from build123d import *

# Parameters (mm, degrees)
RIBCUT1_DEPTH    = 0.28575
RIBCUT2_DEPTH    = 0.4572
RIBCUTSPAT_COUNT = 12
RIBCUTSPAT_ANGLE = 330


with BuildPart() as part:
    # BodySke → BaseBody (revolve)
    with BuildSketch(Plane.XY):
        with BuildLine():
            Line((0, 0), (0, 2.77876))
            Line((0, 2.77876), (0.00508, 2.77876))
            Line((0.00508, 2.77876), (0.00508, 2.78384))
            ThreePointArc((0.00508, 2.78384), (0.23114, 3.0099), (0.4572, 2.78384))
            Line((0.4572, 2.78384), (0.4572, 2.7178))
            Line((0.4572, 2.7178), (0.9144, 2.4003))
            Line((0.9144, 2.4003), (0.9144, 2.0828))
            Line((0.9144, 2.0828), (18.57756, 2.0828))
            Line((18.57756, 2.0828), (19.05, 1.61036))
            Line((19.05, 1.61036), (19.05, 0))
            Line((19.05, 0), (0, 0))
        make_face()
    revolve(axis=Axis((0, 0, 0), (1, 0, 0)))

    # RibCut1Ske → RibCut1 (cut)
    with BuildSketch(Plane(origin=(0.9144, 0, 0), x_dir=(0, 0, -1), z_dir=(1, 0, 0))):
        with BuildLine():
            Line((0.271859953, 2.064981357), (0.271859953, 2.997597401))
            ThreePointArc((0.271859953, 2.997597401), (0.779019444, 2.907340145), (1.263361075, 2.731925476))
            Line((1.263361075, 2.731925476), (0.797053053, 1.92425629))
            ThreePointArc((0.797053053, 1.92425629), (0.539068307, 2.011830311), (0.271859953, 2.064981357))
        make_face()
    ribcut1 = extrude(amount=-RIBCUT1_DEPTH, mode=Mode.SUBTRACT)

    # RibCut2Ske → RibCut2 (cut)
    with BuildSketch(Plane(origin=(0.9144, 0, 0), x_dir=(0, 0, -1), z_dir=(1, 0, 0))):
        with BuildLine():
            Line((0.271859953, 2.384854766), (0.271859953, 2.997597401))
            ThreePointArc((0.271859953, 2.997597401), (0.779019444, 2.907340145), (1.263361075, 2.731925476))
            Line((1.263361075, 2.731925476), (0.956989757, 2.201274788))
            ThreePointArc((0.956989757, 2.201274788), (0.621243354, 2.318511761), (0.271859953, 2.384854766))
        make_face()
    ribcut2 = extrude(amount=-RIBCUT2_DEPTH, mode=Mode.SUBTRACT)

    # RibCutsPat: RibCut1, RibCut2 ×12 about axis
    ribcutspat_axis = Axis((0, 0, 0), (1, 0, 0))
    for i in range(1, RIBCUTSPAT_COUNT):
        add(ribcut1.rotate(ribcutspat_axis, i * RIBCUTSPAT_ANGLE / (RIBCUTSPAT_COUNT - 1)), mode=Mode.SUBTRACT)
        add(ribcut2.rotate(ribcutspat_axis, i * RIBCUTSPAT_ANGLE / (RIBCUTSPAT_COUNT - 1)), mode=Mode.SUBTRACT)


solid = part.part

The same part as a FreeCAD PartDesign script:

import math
import FreeCAD as App
import Part
import Sketcher
Q = App.Units.Quantity

doc = App.newDocument("Part")
body = doc.addObject("PartDesign::Body", "Body")

sketch1 = doc.addObject("Sketcher::SketchObject", "Sketch")
body.addObject(sketch1)
sketch1.AttachmentSupport = (doc.XY_Plane, [""])
sketch1.MapMode = "FlatFace"
sketch1.addGeometry([
    Part.LineSegment(App.Vector(0, 2.77876, 0), App.Vector(0, 0, 0)),
    Part.LineSegment(App.Vector(0, 0, 0), App.Vector(19.05, 0, 0)),
    Part.LineSegment(App.Vector(19.05, 0, 0), App.Vector(19.05, 1.61036, 0)),
    Part.LineSegment(App.Vector(19.05, 1.61036, 0), App.Vector(18.57756, 2.0828, 0)),
    Part.LineSegment(App.Vector(18.57756, 2.0828, 0), App.Vector(0.9144, 2.0828, 0)),
    Part.LineSegment(App.Vector(0.9144, 2.0828, 0), App.Vector(0.9144, 2.4003, 0)),
    Part.LineSegment(App.Vector(0.9144, 2.4003, 0), App.Vector(0.4572, 2.7178, 0)),
    Part.LineSegment(App.Vector(0.4572, 2.7178, 0), App.Vector(0.4572, 2.78384, 0)),
    Part.ArcOfCircle(Part.Circle(App.Vector(0.23114, 2.78384, 0), App.Vector(0, 0, 1), 0.22606), math.radians(0), math.radians(180)),
    Part.LineSegment(App.Vector(0.00508, 2.78384, 0), App.Vector(0.00508, 2.77876, 0)),
    Part.LineSegment(App.Vector(0.00508, 2.77876, 0), App.Vector(0, 2.77876, 0)),
], False)
sketch1.addConstraint([
    Sketcher.Constraint("Coincident", 0, 2, 1, 1),
    Sketcher.Constraint("Coincident", 1, 2, 2, 1),
    Sketcher.Constraint("Coincident", 2, 2, 3, 1),
    Sketcher.Constraint("Coincident", 3, 2, 4, 1),
    Sketcher.Constraint("Coincident", 4, 2, 5, 1),
    Sketcher.Constraint("Coincident", 5, 2, 6, 1),
    Sketcher.Constraint("Coincident", 6, 2, 7, 1),
    Sketcher.Constraint("Tangent", 7, 2, 8, 1),
    Sketcher.Constraint("Tangent", 8, 2, 9, 1),
    Sketcher.Constraint("Coincident", 9, 2, 10, 1),
    Sketcher.Constraint("Coincident", 10, 2, 0, 1),
    Sketcher.Constraint("Vertical", 0),
    Sketcher.Constraint("Horizontal", 1),
    Sketcher.Constraint("Vertical", 2),
    Sketcher.Constraint("Horizontal", 4),
    Sketcher.Constraint("Vertical", 5),
    Sketcher.Constraint("Vertical", 7),
    Sketcher.Constraint("Vertical", 9),
    Sketcher.Constraint("Horizontal", 10),
    Sketcher.Constraint("Coincident", 0, 2, -1, 1),
    Sketcher.Constraint("Equal", 10, 9),
    Sketcher.Constraint("Angle", 3, Q("135 deg")),
    Sketcher.Constraint("DistanceX", 1, 1, 1, 2, Q("0.75 in")),
    Sketcher.Constraint("Radius", 8, Q("0.0089 in")),
    Sketcher.Constraint("DistanceX", 4, 2, 4, 1, Q("0.6954 in")),
    Sketcher.Constraint("DistanceX", 10, 2, 10, 1, Q("0.0002 in")),
    Sketcher.Constraint("DistanceY", 0, 2, 0, 1, Q("0.1094 in")),
    Sketcher.Constraint("DistanceY", 2, 1, 2, 2, Q("0.0634 in")),
    Sketcher.Constraint("DistanceY", 5, 1, 5, 2, Q("0.0125 in")),
    Sketcher.Constraint("DistanceY", 7, 1, 7, 2, Q("0.0026 in")),
    Sketcher.Constraint("DistanceY", -1, 1, 3, 2, Q("0.082 in")),
])
revolution = doc.addObject("PartDesign::Revolution", "Revolution")
body.addObject(revolution)
revolution.Profile = sketch1
revolution.ReferenceAxis = (sketch1, ["H_Axis"])
revolution.Angle = 360

sketch2 = doc.addObject("Sketcher::SketchObject", "Sketch001")
body.addObject(sketch2)
sketch2.AttachmentSupport = (doc.YZ_Plane, [""])
sketch2.MapMode = "FlatFace"
sketch2.AttachmentOffset = App.Placement(App.Vector(0, 0, 0.036 * 25.4), App.Rotation())
sketch2.addGeometry([
    Part.LineSegment(App.Vector(2.997597, -0.27186, 0), App.Vector(2.064981, -0.27186, 0)),
    Part.ArcOfCircle(Part.Circle(App.Vector(0, 0, 0), App.Vector(0, 0, 1), 2.0828), math.radians(-22.5), math.radians(-7.5)),
    Part.LineSegment(App.Vector(1.924256, -0.797053, 0), App.Vector(2.731925, -1.263361, 0)),
    Part.ArcOfCircle(Part.Circle(App.Vector(0, 0, 0), App.Vector(0, 0, 1), 3.0099), math.radians(-24.817873), math.radians(-5.182127)),
], False)
sketch2.addConstraint([
    Sketcher.Constraint("Coincident", 0, 2, 1, 2),
    Sketcher.Constraint("Coincident", 1, 1, 2, 1),
    Sketcher.Constraint("Coincident", 2, 2, 3, 1),
    Sketcher.Constraint("Coincident", 3, 2, 0, 1),
    Sketcher.Constraint("Horizontal", 0),
    Sketcher.Constraint("Coincident", 1, 3, -1, 1),
    Sketcher.Constraint("Coincident", 3, 3, -1, 1),
    Sketcher.Constraint("Angle", 2, Q("-30 deg")),
    Sketcher.Constraint("Radius", 1, Q("0.082 in")),
    Sketcher.Constraint("Radius", 3, Q("0.1185 in")),
    Sketcher.Constraint("DistanceY", 2, 2, 0, 2, 0.991501),
    Sketcher.Constraint("DistanceX", 0, 2, 0, 1, 0.932616),
])
pocket1 = doc.addObject("PartDesign::Pocket", "Pocket")
body.addObject(pocket1)
pocket1.Profile = sketch2
pocket1.Length = 0.28575

sketch3 = doc.addObject("Sketcher::SketchObject", "Sketch002")
body.addObject(sketch3)
sketch3.AttachmentSupport = (doc.YZ_Plane, [""])
sketch3.MapMode = "FlatFace"
sketch3.AttachmentOffset = App.Placement(App.Vector(0, 0, 0.036 * 25.4), App.Rotation())
sketch3.addGeometry([
    Part.LineSegment(App.Vector(2.997597, -0.27186, 0), App.Vector(2.384855, -0.27186, 0)),
    Part.ArcOfCircle(Part.Circle(App.Vector(0, 0, 0), App.Vector(0, 0, 1), 2.4003), math.radians(-23.496678), math.radians(-6.503322)),
    Part.LineSegment(App.Vector(2.201275, -0.95699, 0), App.Vector(2.731925, -1.263361, 0)),
    Part.ArcOfCircle(Part.Circle(App.Vector(0, 0, 0), App.Vector(0, 0, 1), 3.0099), math.radians(-24.817873), math.radians(-5.182127)),
], False)
sketch3.addConstraint([
    Sketcher.Constraint("Coincident", 0, 2, 1, 2),
    Sketcher.Constraint("Coincident", 1, 1, 2, 1),
    Sketcher.Constraint("Coincident", 2, 2, 3, 1),
    Sketcher.Constraint("Coincident", 3, 2, 0, 1),
    Sketcher.Constraint("Horizontal", 0),
    Sketcher.Constraint("Coincident", 1, 3, -1, 1),
    Sketcher.Constraint("Coincident", 3, 3, -1, 1),
    Sketcher.Constraint("Angle", 2, Q("-30 deg")),
    Sketcher.Constraint("Radius", 1, Q("0.0945 in")),
    Sketcher.Constraint("Radius", 3, Q("0.1185 in")),
    Sketcher.Constraint("DistanceY", 2, 2, 0, 2, 0.991501),
    Sketcher.Constraint("DistanceX", 0, 2, 0, 1, 0.612743),
])
pocket2 = doc.addObject("PartDesign::Pocket", "Pocket001")
body.addObject(pocket2)
pocket2.Profile = sketch3
pocket2.Length = Q("0.018 in")
doc.recompute()

polarpattern = doc.addObject("PartDesign::PolarPattern", "PolarPattern")
body.addObject(polarpattern)
polarpattern.Originals = [pocket1, pocket2]
polarpattern.Axis = (doc.X_Axis, [""])
polarpattern.Angle = 360
polarpattern.Occurrences = 12
body.Tip = polarpattern

doc.recompute()
